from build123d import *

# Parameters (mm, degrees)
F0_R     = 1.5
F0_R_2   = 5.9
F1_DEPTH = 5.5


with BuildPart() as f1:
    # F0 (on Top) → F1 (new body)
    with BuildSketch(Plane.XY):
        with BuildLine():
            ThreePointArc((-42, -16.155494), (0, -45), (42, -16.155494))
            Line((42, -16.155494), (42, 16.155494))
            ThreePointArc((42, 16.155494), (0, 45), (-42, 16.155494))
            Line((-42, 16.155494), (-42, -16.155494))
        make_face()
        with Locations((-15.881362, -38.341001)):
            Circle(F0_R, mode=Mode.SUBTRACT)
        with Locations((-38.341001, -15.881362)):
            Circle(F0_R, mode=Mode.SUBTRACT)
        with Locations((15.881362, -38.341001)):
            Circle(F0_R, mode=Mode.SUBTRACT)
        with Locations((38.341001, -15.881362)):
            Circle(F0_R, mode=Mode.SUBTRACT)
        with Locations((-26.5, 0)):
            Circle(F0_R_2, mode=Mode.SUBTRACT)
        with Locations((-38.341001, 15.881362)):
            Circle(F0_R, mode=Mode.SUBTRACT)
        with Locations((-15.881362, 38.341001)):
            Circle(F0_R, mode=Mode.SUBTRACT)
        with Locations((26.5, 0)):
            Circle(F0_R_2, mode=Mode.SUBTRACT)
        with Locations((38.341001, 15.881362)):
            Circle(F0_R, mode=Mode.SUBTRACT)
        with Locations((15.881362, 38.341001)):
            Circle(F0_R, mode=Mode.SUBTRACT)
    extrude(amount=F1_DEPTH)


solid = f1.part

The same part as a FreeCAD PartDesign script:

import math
import FreeCAD as App
import Part
import Sketcher

doc = App.newDocument("Part")
body = doc.addObject("PartDesign::Body", "Body")

# Sketch on XY plane
sketch1 = body.newObject("Sketcher::SketchObject", "Sketch")
sketch1.AttachmentSupport = (doc.getObject("XY_Plane"), [""])
sketch1.MapMode = "FlatFace"
sketch1.addGeometry(Part.ArcOfCircle(Part.Circle(App.Vector(0, 0, 0), App.Vector(0, 0, 1), 45), math.radians(-159), math.radians(-21)), False)
sketch1.addGeometry(Part.LineSegment(App.Vector(42, -16.2, 0), App.Vector(42, 16.2, 0)), False)
sketch1.addGeometry(Part.ArcOfCircle(Part.Circle(App.Vector(0, 0, 0), App.Vector(0, 0, 1), 45), math.radians(21), math.radians(159)), False)
sketch1.addGeometry(Part.LineSegment(App.Vector(-42, 16.2, 0), App.Vector(-42, -16.2, 0)), False)
sketch1.addGeometry(Part.Circle(App.Vector(-15.9, -38.3, 0), App.Vector(0, 0, 1), 1.5), False)
sketch1.addGeometry(Part.Circle(App.Vector(-38.3, -15.9, 0), App.Vector(0, 0, 1), 1.5), False)
sketch1.addGeometry(Part.Circle(App.Vector(15.9, -38.3, 0), App.Vector(0, 0, 1), 1.5), False)
sketch1.addGeometry(Part.Circle(App.Vector(38.3, -15.9, 0), App.Vector(0, 0, 1), 1.5), False)
sketch1.addGeometry(Part.Circle(App.Vector(-26.5, 0, 0), App.Vector(0, 0, 1), 5.9), False)
sketch1.addGeometry(Part.Circle(App.Vector(-38.3, 15.9, 0), App.Vector(0, 0, 1), 1.5), False)
sketch1.addGeometry(Part.Circle(App.Vector(-15.9, 38.3, 0), App.Vector(0, 0, 1), 1.5), False)
sketch1.addGeometry(Part.Circle(App.Vector(26.5, 0, 0), App.Vector(0, 0, 1), 5.9), False)
sketch1.addGeometry(Part.Circle(App.Vector(38.3, 15.9, 0), App.Vector(0, 0, 1), 1.5), False)
sketch1.addGeometry(Part.Circle(App.Vector(15.9, 38.3, 0), App.Vector(0, 0, 1), 1.5), False)
sketch1.addConstraint(Sketcher.Constraint("Coincident", 0, 2, 1, 1))
sketch1.addConstraint(Sketcher.Constraint("Coincident", 1, 2, 2, 1))
sketch1.addConstraint(Sketcher.Constraint("Coincident", 2, 2, 3, 1))
sketch1.addConstraint(Sketcher.Constraint("Coincident", 3, 2, 0, 1))
sketch1.addConstraint(Sketcher.Constraint("Vertical", 1))
sketch1.addConstraint(Sketcher.Constraint("Vertical", 3))
sketch1.addConstraint(Sketcher.Constraint("Coincident", 0, 3, -1, 1))
sketch1.addConstraint(Sketcher.Constraint("Coincident", 2, 3, -1, 1))
sketch1.addConstraint(Sketcher.Constraint("Equal", 0, 2))
sketch1.addConstraint(Sketcher.Constraint("Equal", 4, 5))
sketch1.addConstraint(Sketcher.Constraint("Equal", 5, 6))
sketch1.addConstraint(Sketcher.Constraint("Equal", 6, 7))
sketch1.addConstraint(Sketcher.Constraint("Equal", 7, 9))
sketch1.addConstraint(Sketcher.Constraint("Equal", 9, 10))
sketch1.addConstraint(Sketcher.Constraint("Equal", 8, 11))
sketch1.addConstraint(Sketcher.Constraint("Equal", 10, 12))
sketch1.addConstraint(Sketcher.Constraint("Equal", 12, 13))
sketch1.addConstraint(Sketcher.Constraint("Symmetric", 7, 3, 9, 3, -1, 1))
sketch1.addConstraint(Sketcher.Constraint("Symmetric", 6, 3, 10, 3, -1, 1))
sketch1.addConstraint(Sketcher.Constraint("Symmetric", 8, 3, 11, 3, -1, 1))
sketch1.addConstraint(Sketcher.Constraint("Symmetric", 5, 3, 12, 3, -1, 1))
sketch1.addConstraint(Sketcher.Constraint("Symmetric", 4, 3, 13, 3, -1, 1))
sketch1.addConstraint(Sketcher.Constraint("Symmetric", 4, 3, 6, 3, -2))
sketch1.addConstraint(Sketcher.Constraint("Symmetric", 5, 3, 7, 3, -2))
sketch1.addConstraint(Sketcher.Constraint("PointOnObject", 8, 3, -1))
sketch1.addConstraint(Sketcher.Constraint("Horizontal", 1, 2, 2, 2))
sketch1.addConstraint(Sketcher.Constraint("Diameter", 4, 3.0))
sketch1.addConstraint(Sketcher.Constraint("Radius", 0, 45.0))
sketch1.addConstraint(Sketcher.Constraint("Diameter", 8, 11.8))
sketch1.addConstraint(Sketcher.Constraint("DistanceX", -1, 1, 0, 2, 42.0))
sketch1.addConstraint(Sketcher.Constraint("DistanceX", 8, 3, 11, 3, 53.0))
sketch1.addConstraint(Sketcher.Constraint("DistanceY", 4, 3, -1, 1, 38.341001))
sketch1.addConstraint(Sketcher.Constraint("DistanceX", 5, 3, -1, 1, 38.341001))
sketch1.addConstraint(Sketcher.Constraint("DistanceX", 4, 3, -1, 1, 15.881362))
sketch1.addConstraint(Sketcher.Constraint("DistanceY", 5, 3, -1, 1, 15.881362))
pad1 = body.newObject("PartDesign::Pad", "Pad")
pad1.Profile = sketch1
pad1.Length = 5.5

doc.recompute()
